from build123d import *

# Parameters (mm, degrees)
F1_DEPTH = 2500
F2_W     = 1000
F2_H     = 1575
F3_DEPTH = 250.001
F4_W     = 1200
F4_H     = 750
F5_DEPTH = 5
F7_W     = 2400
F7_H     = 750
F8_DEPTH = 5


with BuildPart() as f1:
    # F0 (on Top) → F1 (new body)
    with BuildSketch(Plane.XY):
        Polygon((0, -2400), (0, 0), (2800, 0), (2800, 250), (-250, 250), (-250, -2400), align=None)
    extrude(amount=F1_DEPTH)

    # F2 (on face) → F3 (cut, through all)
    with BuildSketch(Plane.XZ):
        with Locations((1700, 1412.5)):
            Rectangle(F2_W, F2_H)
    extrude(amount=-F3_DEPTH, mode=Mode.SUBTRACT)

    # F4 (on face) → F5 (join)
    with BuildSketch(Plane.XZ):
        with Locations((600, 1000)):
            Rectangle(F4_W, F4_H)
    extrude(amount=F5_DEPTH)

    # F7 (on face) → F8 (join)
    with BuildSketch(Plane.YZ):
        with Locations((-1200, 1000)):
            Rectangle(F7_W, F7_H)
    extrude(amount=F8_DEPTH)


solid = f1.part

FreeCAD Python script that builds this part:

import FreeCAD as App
import Part
import Sketcher
Q = App.Units.Quantity


def add_polygon(sketch, points):
    """Adds a closed chain of lines whose ends are joined by coincident constraints."""
    first, n = sketch.GeometryCount, len(points)
    for a, b in zip(points, points[1:] + points[:1]):
        sketch.addGeometry(Part.LineSegment(App.Vector(*a, 0), App.Vector(*b, 0)), False)
    for i in range(n):
        sketch.addConstraint(Sketcher.Constraint("Coincident", first + i, 2, first + (i + 1) % n, 1))

doc = App.newDocument("Part")
body = doc.addObject("PartDesign::Body", "Body")

# Sketch on XY plane
sketch1 = body.newObject("Sketcher::SketchObject", "Sketch")
sketch1.AttachmentSupport = (doc.getObject("XY_Plane"), [""])
sketch1.MapMode = "FlatFace"
add_polygon(sketch1, [(0, -2400), (0, 0), (2800, 0), (2800, 250), (-250, 250), (-250, -2400)])  # lines 0-5
sketch1.addConstraint(Sketcher.Constraint("Vertical", 0))
sketch1.addConstraint(Sketcher.Constraint("Horizontal", 1))
sketch1.addConstraint(Sketcher.Constraint("Vertical", 2))
sketch1.addConstraint(Sketcher.Constraint("Horizontal", 3))
sketch1.addConstraint(Sketcher.Constraint("Vertical", 4))
sketch1.addConstraint(Sketcher.Constraint("Horizontal", 5))
sketch1.addConstraint(Sketcher.Constraint("Coincident", 0, 2, -1, 1))
sketch1.addConstraint(Sketcher.Constraint("Equal", 5, 2))
sketch1.addConstraint(Sketcher.Constraint("DistanceX", 1, 1, 1, 2, Q("2800 mm")))
sketch1.addConstraint(Sketcher.Constraint("DistanceX", 3, 2, 3, 1, Q("3050 mm")))
sketch1.addConstraint(Sketcher.Constraint("DistanceY", 0, 1, 0, 2, Q("2400 mm")))
pad1 = body.newObject("PartDesign::Pad", "Pad")
pad1.Profile = sketch1
pad1.Length = 2500

# Sketch on XZ plane
sketch2 = body.newObject("Sketcher::SketchObject", "Sketch001")
sketch2.AttachmentSupport = (doc.getObject("XZ_Plane"), [""])
sketch2.MapMode = "FlatFace"
add_polygon(sketch2, [(1200, 2200), (1200, 625), (2200, 625), (2200, 2200)])  # lines 0-3
sketch2.addConstraint(Sketcher.Constraint("Vertical", 0))
sketch2.addConstraint(Sketcher.Constraint("Horizontal", 1))
sketch2.addConstraint(Sketcher.Constraint("Vertical", 2))
sketch2.addConstraint(Sketcher.Constraint("Horizontal", 3))
sketch2.addConstraint(Sketcher.Constraint("DistanceX", 1, 1, 1, 2, Q("1000 mm")))
sketch2.addConstraint(Sketcher.Constraint("DistanceY", 0, 2, 0, 1, Q("1575 mm")))
sketch2.addConstraint(Sketcher.Constraint("DistanceX", -1, 1, 0, 2, Q("1200 mm")))
sketch2.addConstraint(Sketcher.Constraint("DistanceY", -1, 1, 0, 2, Q("625 mm")))
pocket1 = body.newObject("PartDesign::Pocket", "Pocket")
pocket1.Profile = sketch2
pocket1.Type = "ThroughAll"

# Sketch on XZ plane
sketch3 = body.newObject("Sketcher::SketchObject", "Sketch002")
sketch3.AttachmentSupport = (doc.getObject("XZ_Plane"), [""])
sketch3.MapMode = "FlatFace"
add_polygon(sketch3, [(0, 1375), (0, 625), (1200, 625), (1200, 1375)])  # lines 0-3
sketch3.addConstraint(Sketcher.Constraint("Vertical", 0))
sketch3.addConstraint(Sketcher.Constraint("Horizontal", 1))
sketch3.addConstraint(Sketcher.Constraint("Vertical", 2))
sketch3.addConstraint(Sketcher.Constraint("Horizontal", 3))
sketch3.addConstraint(Sketcher.Constraint("PointOnObject", 0, 2, -2))
sketch3.addConstraint(Sketcher.Constraint("DistanceX", 1, 1, 1, 2, Q("1200 mm")))
sketch3.addConstraint(Sketcher.Constraint("DistanceY", 0, 2, 0, 1, Q("750 mm")))
sketch3.addConstraint(Sketcher.Constraint("DistanceY", -1, 1, 0, 2, Q("625 mm")))
pad2 = body.newObject("PartDesign::Pad", "Pad001")
pad2.Profile = sketch3
pad2.Length = 5

# Sketch on YZ plane
sketch4 = body.newObject("Sketcher::SketchObject", "Sketch003")
sketch4.AttachmentSupport = (doc.getObject("YZ_Plane"), [""])
sketch4.MapMode = "FlatFace"
add_polygon(sketch4, [(-2400, 1375), (-2400, 625), (0, 625), (0, 1375)])  # lines 0-3
sketch4.addConstraint(Sketcher.Constraint("Vertical", 0))
sketch4.addConstraint(Sketcher.Constraint("Horizontal", 1))
sketch4.addConstraint(Sketcher.Constraint("Vertical", 2))
sketch4.addConstraint(Sketcher.Constraint("Horizontal", 3))
sketch4.addConstraint(Sketcher.Constraint("PointOnObject", 1, 2, -2))
sketch4.addConstraint(Sketcher.Constraint("DistanceX", 1, 1, 1, 2, Q("2400 mm")))
sketch4.addConstraint(Sketcher.Constraint("DistanceY", 0, 2, 0, 1, Q("750 mm")))
sketch4.addConstraint(Sketcher.Constraint("DistanceY", -1, 1, 0, 2, Q("625 mm")))
pad3 = body.newObject("PartDesign::Pad", "Pad002")
pad3.Profile = sketch4
pad3.Length = 5

doc.recompute()
